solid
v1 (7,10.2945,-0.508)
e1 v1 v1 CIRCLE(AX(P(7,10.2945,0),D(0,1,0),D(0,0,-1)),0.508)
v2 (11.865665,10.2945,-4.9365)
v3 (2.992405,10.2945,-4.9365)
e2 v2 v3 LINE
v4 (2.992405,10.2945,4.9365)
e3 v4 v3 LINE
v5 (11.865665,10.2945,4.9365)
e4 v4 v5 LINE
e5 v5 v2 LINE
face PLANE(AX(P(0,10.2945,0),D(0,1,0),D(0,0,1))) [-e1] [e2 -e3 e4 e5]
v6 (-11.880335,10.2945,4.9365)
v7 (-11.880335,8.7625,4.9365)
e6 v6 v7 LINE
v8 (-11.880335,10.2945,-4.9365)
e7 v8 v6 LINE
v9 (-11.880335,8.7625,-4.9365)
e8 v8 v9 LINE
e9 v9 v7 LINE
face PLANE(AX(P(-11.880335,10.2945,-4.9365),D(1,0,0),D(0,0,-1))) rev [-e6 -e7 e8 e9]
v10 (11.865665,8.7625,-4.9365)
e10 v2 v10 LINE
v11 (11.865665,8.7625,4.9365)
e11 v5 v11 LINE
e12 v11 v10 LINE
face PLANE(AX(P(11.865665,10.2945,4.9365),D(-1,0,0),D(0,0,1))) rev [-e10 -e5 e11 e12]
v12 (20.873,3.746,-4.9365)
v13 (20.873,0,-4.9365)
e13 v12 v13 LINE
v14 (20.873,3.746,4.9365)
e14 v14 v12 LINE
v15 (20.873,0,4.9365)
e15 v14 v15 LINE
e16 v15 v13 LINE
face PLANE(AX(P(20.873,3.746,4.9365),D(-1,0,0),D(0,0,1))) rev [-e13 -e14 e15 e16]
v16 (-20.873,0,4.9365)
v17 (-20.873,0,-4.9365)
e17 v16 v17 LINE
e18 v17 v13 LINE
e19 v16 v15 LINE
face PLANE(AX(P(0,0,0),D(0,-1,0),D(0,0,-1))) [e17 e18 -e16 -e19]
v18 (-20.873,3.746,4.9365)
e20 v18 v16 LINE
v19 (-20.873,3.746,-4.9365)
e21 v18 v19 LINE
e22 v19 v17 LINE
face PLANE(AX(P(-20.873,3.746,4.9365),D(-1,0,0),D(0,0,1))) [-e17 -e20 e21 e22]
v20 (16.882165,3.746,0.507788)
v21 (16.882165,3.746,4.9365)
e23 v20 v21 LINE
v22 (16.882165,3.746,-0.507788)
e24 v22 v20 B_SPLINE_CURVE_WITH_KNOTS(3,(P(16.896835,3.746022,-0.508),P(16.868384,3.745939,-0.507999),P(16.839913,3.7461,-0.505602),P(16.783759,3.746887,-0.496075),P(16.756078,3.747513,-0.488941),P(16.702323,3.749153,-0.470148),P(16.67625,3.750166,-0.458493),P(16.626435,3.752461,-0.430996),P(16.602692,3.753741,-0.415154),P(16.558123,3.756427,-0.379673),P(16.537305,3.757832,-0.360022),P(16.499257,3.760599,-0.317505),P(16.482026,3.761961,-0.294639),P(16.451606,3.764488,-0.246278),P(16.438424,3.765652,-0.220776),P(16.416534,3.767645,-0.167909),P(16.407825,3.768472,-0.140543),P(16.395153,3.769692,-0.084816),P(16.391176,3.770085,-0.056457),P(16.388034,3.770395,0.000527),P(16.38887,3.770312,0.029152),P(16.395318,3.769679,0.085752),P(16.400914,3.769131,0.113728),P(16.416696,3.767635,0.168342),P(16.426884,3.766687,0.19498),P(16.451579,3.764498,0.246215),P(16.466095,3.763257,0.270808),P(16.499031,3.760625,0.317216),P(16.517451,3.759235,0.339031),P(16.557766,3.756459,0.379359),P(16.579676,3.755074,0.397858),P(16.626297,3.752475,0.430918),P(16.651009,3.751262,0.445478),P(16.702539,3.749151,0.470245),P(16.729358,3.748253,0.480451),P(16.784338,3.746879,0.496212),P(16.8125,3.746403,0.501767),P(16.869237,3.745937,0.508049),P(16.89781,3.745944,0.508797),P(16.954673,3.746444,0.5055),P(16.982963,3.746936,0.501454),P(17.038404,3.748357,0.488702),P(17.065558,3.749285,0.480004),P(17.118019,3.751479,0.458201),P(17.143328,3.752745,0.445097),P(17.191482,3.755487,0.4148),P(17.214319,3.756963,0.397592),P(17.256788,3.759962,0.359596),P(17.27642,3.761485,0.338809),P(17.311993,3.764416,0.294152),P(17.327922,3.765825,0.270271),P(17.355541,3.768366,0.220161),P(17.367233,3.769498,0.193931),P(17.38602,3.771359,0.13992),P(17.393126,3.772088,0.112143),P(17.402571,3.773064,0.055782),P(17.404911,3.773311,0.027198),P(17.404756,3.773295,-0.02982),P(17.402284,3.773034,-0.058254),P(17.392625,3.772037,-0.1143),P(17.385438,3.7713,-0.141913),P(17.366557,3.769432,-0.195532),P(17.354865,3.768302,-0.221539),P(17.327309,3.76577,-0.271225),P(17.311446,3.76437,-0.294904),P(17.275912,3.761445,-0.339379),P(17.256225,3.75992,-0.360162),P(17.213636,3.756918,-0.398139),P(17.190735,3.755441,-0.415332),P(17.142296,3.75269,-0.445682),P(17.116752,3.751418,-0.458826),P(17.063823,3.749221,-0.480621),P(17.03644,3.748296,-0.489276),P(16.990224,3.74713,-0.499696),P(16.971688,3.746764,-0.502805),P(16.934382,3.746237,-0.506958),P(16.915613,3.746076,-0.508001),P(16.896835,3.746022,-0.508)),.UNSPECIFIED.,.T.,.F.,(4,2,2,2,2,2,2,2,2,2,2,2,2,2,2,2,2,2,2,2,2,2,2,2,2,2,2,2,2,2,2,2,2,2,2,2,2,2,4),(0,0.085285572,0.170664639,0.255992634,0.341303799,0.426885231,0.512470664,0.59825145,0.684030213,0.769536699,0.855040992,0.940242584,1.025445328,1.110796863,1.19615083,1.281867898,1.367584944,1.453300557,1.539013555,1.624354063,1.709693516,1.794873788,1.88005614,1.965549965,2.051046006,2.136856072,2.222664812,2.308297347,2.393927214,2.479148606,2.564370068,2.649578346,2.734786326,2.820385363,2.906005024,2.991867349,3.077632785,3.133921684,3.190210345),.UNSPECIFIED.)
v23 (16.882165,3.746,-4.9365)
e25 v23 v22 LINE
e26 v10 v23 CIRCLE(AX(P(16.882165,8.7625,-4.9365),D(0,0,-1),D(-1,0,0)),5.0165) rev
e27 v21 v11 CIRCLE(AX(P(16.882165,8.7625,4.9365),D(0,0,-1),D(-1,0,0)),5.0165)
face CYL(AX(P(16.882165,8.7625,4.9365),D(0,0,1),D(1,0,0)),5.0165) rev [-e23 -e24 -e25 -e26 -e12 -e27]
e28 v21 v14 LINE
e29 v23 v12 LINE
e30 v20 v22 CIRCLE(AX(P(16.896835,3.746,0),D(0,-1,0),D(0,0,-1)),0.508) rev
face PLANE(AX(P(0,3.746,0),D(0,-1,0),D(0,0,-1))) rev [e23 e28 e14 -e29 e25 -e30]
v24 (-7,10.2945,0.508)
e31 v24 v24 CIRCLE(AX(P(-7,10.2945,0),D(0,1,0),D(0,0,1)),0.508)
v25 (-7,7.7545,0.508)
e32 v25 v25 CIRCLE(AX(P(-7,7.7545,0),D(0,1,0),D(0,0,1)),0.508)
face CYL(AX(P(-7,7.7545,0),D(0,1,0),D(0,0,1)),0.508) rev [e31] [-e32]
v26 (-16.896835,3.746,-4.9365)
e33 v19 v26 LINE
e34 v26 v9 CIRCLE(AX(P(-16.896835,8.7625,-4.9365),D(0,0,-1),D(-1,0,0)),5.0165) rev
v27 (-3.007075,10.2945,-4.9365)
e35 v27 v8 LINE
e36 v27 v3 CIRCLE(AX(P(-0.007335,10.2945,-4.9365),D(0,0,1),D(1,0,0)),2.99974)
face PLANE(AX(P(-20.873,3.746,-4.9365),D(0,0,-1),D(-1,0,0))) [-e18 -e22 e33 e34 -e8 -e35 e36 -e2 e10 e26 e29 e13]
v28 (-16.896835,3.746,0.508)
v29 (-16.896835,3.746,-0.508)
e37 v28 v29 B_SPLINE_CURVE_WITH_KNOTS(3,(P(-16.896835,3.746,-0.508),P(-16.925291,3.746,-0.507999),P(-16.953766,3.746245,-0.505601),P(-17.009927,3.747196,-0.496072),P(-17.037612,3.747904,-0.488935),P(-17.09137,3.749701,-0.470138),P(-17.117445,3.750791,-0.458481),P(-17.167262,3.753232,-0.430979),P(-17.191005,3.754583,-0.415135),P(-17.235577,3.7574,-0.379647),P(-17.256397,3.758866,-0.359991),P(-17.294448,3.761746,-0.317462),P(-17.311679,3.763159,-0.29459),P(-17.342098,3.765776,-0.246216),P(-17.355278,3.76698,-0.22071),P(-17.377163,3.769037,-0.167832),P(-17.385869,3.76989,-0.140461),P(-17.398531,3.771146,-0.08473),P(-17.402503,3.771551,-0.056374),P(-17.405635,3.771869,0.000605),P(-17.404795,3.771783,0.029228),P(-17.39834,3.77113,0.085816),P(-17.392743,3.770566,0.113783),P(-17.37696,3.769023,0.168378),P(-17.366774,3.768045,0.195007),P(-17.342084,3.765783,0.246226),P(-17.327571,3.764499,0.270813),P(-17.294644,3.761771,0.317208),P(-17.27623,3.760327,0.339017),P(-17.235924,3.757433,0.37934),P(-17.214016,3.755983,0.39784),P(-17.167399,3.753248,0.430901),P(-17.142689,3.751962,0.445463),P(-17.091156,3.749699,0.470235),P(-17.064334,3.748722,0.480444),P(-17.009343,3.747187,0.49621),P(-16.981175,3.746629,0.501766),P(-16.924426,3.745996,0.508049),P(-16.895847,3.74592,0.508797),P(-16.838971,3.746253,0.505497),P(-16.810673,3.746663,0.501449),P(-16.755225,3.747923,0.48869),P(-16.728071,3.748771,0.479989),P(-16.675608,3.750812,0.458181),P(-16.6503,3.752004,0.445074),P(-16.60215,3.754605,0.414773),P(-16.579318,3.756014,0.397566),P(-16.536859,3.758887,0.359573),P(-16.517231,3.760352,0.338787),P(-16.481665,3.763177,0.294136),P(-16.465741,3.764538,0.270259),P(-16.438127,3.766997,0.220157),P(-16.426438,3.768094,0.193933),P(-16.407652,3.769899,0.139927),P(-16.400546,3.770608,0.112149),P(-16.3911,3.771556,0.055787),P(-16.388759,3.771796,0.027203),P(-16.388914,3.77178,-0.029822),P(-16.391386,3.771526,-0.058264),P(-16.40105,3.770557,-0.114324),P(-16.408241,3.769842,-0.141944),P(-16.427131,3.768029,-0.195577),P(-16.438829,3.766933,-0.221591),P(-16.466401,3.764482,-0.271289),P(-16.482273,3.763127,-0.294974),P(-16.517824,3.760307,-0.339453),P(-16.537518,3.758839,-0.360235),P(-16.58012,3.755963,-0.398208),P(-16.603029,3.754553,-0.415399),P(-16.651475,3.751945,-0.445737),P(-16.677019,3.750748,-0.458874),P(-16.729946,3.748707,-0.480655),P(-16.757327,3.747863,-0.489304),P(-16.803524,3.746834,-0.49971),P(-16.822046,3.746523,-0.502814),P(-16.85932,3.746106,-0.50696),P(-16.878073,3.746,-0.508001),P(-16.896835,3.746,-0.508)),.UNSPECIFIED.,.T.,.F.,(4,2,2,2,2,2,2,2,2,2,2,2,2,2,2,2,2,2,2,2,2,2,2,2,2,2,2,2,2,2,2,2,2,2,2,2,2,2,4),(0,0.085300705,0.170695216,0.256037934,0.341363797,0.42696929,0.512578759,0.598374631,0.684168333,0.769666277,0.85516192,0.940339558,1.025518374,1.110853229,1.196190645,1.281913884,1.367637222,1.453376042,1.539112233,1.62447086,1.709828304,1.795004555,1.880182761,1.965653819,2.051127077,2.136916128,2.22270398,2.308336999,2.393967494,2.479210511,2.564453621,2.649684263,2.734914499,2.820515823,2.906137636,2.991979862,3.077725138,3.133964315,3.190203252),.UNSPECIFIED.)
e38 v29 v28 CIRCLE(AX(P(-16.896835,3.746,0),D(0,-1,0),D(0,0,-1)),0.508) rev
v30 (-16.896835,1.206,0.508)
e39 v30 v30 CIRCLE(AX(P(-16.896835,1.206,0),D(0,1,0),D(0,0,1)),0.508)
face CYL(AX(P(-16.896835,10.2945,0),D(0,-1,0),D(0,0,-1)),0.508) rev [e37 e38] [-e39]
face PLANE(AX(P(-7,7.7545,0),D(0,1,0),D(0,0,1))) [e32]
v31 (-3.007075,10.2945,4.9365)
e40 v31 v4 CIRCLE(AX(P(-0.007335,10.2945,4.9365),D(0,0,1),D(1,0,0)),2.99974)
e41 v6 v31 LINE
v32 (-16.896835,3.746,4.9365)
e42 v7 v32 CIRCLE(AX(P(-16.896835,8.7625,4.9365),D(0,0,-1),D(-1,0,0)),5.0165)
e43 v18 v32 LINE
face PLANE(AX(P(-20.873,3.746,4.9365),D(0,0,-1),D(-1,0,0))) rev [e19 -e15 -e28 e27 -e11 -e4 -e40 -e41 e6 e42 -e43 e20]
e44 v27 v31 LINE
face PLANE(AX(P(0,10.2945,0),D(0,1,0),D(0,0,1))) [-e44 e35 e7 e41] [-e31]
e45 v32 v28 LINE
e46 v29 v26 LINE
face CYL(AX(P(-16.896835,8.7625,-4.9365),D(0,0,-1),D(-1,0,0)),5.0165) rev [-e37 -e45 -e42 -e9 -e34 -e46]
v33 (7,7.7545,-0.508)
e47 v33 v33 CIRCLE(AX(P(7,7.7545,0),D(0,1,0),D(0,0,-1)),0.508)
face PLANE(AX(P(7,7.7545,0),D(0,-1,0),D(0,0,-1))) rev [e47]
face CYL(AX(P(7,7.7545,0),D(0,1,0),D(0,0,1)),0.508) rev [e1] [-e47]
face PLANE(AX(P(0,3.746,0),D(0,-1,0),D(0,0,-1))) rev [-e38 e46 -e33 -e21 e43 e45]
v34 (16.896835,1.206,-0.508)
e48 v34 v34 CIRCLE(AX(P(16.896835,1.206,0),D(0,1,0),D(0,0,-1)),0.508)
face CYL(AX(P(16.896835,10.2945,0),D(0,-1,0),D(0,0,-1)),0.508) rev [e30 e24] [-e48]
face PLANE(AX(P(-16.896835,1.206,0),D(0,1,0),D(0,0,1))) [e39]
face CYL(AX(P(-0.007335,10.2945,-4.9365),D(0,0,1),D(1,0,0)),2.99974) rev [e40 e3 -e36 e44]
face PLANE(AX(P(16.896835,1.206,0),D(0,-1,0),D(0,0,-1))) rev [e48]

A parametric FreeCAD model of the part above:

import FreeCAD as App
import Part
import Sketcher
from FreeCAD import Vector
Q = App.Units.Quantity


def edges_at(feature, points):
    """Names of the edges that pass closest to the given points."""
    edges = feature.Shape.Edges
    near = lambda p: min(range(len(edges)), key=lambda i: edges[i].distToShape(Part.Vertex(*p))[0])
    return sorted({f"Edge{near(p) + 1}" for p in points})

doc = App.newDocument("Part")
params = doc.addObject("Spreadsheet::Sheet", "Params")
for row, (alias, value) in enumerate([
    ("pad1_length", "3.746 mm"),
    ("pad2_length", "6.5485 mm"),
    ("fillet_radius", "0.1975 in"),
    ("sketch4_diameter", "0.04 in"),
    ("pocket2_length", "23.42619 mm"),
    ("pocket2_length2", "0.1 in"),
    ("sketch5_diameter", "0.04 in"),
    ("pocket3_length", "0.1 in"),
], start=1):
    params.set(f"A{row}", alias)
    params.set(f"B{row}", "=" + value)
    params.setAlias(f"B{row}", alias)

body = doc.addObject("PartDesign::Body", "Body")

sketch1 = body.newObject("Sketcher::SketchObject", "Sketch")
sketch1.AttachmentSupport = (doc.getObject("XZ_Plane"), [""])
sketch1.MapMode = "FlatFace"
sketch1.addGeometry([
    Part.LineSegment(Vector(-21, -5, 0), Vector(-21, 5, 0)),
    Part.LineSegment(Vector(-21, 5, 0), Vector(21, 5, 0)),
    Part.LineSegment(Vector(21, 5, 0), Vector(21, -5, 0)),
    Part.LineSegment(Vector(21, -5, 0), Vector(-21, -5, 0)),
], False)
sketch1.addConstraint([
    Sketcher.Constraint("Coincident", 0, 2, 1, 1),
    Sketcher.Constraint("Coincident", 1, 2, 2, 1),
    Sketcher.Constraint("Coincident", 2, 2, 3, 1),
    Sketcher.Constraint("Coincident", 3, 2, 0, 1),
    Sketcher.Constraint("Vertical", 0),
    Sketcher.Constraint("Horizontal", 1),
    Sketcher.Constraint("Vertical", 2),
    Sketcher.Constraint("Horizontal", 3),
    Sketcher.Constraint("Symmetric", 0, 2, 2, 2, -1, 1),
    Sketcher.Constraint("DistanceX", 1, 1, 1, 2, 41.746),
    Sketcher.Constraint("DistanceY", 0, 1, 0, 2, 9.873),
])
pad1 = body.newObject("PartDesign::Pad", "Pad")
pad1.Profile = sketch1
pad1.setExpression("Length", "Params.pad1_length")
pad1.Reversed = True

sketch2 = body.newObject("Sketcher::SketchObject", "Sketch001")
sketch2.AttachmentSupport = (doc.getObject("XZ_Plane"), [""])
sketch2.MapMode = "FlatFace"
sketch2.AttachmentOffset = App.Placement(Vector(0, 0, -3.746), App.Rotation())
sketch2.addGeometry([
    Part.LineSegment(Vector(-12, -5, 0), Vector(-12, 5, 0)),
    Part.LineSegment(Vector(-12, 5, 0), Vector(12, 5, 0)),
    Part.LineSegment(Vector(12, 5, 0), Vector(12, -5, 0)),
    Part.LineSegment(Vector(12, -5, 0), Vector(-12, -5, 0)),
], False)
sketch2.addConstraint([
    Sketcher.Constraint("Coincident", 0, 2, 1, 1),
    Sketcher.Constraint("Coincident", 1, 2, 2, 1),
    Sketcher.Constraint("Coincident", 2, 2, 3, 1),
    Sketcher.Constraint("Coincident", 3, 2, 0, 1),
    Sketcher.Constraint("Vertical", 0),
    Sketcher.Constraint("Horizontal", 1),
    Sketcher.Constraint("Vertical", 2),
    Sketcher.Constraint("Horizontal", 3),
    Sketcher.Constraint("DistanceX", 1, 1, 1, 2, 23.746),
    Sketcher.Constraint("DistanceY", 0, 1, 0, 2, 9.873),
    Sketcher.Constraint("DistanceY", -1, 1, 0, 2, 4.9365),
    Sketcher.Constraint("DistanceX", 0, 2, -1, 1, 11.880335),
])
pad2 = body.newObject("PartDesign::Pad", "Pad001")
pad2.Profile = sketch2
pad2.setExpression("Length", "Params.pad2_length")
pad2.Reversed = True
doc.recompute()

fillet = body.newObject("PartDesign::Fillet", "Fillet")
fillet.Base = (pad2, edges_at(pad2, [(-11.88, 3.746, 0), (11.866, 3.746, 0)]))
fillet.setExpression("Radius", "Params.fillet_radius")

sketch3 = body.newObject("Sketcher::SketchObject", "Sketch002")
sketch3.AttachmentSupport = (doc.getObject("XY_Plane"), [""])
sketch3.MapMode = "FlatFace"
sketch3.AttachmentOffset = App.Placement(Vector(0, 0, 4.9365), App.Rotation())
sketch3.addGeometry(Part.Circle(Vector(0, 10.3, 0), Vector(0, 0, 1), 3), False)
sketch3.addConstraint([
    Sketcher.Constraint("Diameter", 0, Q("0.2362 in")),
    Sketcher.Constraint("DistanceY", -1, 1, 0, 3, 10.2945),
    Sketcher.Constraint("DistanceX", 0, 3, -1, 1, 0.007335),
])
pocket1 = body.newObject("PartDesign::Pocket", "Pocket")
pocket1.Profile = sketch3
pocket1.Type = "ThroughAll"

sketch4 = body.newObject("Sketcher::SketchObject", "Sketch003")
sketch4.AttachmentSupport = (doc.getObject("XZ_Plane"), [""])
sketch4.MapMode = "FlatFace"
sketch4.AttachmentOffset = App.Placement(Vector(0, 0, -3.746), App.Rotation())
sketch4.addGeometry([
    Part.Circle(Vector(-16.9, 0, 0), Vector(0, 0, 1), 0.5),
    Part.Circle(Vector(16.9, 0, 0), Vector(0, 0, 1), 0.5),
], False)
sketch4.addConstraint([
    Sketcher.Constraint("Equal", 0, 1),
    Sketcher.Constraint("Symmetric", 0, 3, 1, 3, -1, 1),
    Sketcher.Constraint("PointOnObject", 0, 3, -1),
    Sketcher.Constraint("Diameter", 0, Q("0.04 in")),
    Sketcher.Constraint("DistanceX", 0, 3, 1, 3, 33.79367),
])
sketch4.setExpression("Constraints[3]", "Params.sketch4_diameter")
pocket2 = body.newObject("PartDesign::Pocket", "Pocket001")
pocket2.Profile = sketch4
pocket2.Type = "TwoLengths"
pocket2.setExpression("Length", "Params.pocket2_length")
pocket2.setExpression("Length2", "Params.pocket2_length2")

sketch5 = body.newObject("Sketcher::SketchObject", "Sketch004")
sketch5.AttachmentSupport = (doc.getObject("XZ_Plane"), [""])
sketch5.MapMode = "FlatFace"
sketch5.AttachmentOffset = App.Placement(Vector(0, 0, -10.2945), App.Rotation())
sketch5.addGeometry([
    Part.Circle(Vector(-7, 0, 0), Vector(0, 0, 1), 0.5),
    Part.Circle(Vector(7, 0, 0), Vector(0, 0, 1), 0.5),
], False)
sketch5.addConstraint([
    Sketcher.Constraint("Equal", 0, 1),
    Sketcher.Constraint("Symmetric", 0, 3, 1, 3, -1, 1),
    Sketcher.Constraint("PointOnObject", 0, 3, -1),
    Sketcher.Constraint("Diameter", 0, Q("0.04 in")),
    Sketcher.Constraint("DistanceX", 0, 3, -1, 1, 7.0),
])
sketch5.setExpression("Constraints[3]", "Params.sketch5_diameter")
pocket3 = body.newObject("PartDesign::Pocket", "Pocket002")
pocket3.Profile = sketch5
pocket3.setExpression("Length", "Params.pocket3_length")
pocket3.Reversed = True

doc.recompute()
